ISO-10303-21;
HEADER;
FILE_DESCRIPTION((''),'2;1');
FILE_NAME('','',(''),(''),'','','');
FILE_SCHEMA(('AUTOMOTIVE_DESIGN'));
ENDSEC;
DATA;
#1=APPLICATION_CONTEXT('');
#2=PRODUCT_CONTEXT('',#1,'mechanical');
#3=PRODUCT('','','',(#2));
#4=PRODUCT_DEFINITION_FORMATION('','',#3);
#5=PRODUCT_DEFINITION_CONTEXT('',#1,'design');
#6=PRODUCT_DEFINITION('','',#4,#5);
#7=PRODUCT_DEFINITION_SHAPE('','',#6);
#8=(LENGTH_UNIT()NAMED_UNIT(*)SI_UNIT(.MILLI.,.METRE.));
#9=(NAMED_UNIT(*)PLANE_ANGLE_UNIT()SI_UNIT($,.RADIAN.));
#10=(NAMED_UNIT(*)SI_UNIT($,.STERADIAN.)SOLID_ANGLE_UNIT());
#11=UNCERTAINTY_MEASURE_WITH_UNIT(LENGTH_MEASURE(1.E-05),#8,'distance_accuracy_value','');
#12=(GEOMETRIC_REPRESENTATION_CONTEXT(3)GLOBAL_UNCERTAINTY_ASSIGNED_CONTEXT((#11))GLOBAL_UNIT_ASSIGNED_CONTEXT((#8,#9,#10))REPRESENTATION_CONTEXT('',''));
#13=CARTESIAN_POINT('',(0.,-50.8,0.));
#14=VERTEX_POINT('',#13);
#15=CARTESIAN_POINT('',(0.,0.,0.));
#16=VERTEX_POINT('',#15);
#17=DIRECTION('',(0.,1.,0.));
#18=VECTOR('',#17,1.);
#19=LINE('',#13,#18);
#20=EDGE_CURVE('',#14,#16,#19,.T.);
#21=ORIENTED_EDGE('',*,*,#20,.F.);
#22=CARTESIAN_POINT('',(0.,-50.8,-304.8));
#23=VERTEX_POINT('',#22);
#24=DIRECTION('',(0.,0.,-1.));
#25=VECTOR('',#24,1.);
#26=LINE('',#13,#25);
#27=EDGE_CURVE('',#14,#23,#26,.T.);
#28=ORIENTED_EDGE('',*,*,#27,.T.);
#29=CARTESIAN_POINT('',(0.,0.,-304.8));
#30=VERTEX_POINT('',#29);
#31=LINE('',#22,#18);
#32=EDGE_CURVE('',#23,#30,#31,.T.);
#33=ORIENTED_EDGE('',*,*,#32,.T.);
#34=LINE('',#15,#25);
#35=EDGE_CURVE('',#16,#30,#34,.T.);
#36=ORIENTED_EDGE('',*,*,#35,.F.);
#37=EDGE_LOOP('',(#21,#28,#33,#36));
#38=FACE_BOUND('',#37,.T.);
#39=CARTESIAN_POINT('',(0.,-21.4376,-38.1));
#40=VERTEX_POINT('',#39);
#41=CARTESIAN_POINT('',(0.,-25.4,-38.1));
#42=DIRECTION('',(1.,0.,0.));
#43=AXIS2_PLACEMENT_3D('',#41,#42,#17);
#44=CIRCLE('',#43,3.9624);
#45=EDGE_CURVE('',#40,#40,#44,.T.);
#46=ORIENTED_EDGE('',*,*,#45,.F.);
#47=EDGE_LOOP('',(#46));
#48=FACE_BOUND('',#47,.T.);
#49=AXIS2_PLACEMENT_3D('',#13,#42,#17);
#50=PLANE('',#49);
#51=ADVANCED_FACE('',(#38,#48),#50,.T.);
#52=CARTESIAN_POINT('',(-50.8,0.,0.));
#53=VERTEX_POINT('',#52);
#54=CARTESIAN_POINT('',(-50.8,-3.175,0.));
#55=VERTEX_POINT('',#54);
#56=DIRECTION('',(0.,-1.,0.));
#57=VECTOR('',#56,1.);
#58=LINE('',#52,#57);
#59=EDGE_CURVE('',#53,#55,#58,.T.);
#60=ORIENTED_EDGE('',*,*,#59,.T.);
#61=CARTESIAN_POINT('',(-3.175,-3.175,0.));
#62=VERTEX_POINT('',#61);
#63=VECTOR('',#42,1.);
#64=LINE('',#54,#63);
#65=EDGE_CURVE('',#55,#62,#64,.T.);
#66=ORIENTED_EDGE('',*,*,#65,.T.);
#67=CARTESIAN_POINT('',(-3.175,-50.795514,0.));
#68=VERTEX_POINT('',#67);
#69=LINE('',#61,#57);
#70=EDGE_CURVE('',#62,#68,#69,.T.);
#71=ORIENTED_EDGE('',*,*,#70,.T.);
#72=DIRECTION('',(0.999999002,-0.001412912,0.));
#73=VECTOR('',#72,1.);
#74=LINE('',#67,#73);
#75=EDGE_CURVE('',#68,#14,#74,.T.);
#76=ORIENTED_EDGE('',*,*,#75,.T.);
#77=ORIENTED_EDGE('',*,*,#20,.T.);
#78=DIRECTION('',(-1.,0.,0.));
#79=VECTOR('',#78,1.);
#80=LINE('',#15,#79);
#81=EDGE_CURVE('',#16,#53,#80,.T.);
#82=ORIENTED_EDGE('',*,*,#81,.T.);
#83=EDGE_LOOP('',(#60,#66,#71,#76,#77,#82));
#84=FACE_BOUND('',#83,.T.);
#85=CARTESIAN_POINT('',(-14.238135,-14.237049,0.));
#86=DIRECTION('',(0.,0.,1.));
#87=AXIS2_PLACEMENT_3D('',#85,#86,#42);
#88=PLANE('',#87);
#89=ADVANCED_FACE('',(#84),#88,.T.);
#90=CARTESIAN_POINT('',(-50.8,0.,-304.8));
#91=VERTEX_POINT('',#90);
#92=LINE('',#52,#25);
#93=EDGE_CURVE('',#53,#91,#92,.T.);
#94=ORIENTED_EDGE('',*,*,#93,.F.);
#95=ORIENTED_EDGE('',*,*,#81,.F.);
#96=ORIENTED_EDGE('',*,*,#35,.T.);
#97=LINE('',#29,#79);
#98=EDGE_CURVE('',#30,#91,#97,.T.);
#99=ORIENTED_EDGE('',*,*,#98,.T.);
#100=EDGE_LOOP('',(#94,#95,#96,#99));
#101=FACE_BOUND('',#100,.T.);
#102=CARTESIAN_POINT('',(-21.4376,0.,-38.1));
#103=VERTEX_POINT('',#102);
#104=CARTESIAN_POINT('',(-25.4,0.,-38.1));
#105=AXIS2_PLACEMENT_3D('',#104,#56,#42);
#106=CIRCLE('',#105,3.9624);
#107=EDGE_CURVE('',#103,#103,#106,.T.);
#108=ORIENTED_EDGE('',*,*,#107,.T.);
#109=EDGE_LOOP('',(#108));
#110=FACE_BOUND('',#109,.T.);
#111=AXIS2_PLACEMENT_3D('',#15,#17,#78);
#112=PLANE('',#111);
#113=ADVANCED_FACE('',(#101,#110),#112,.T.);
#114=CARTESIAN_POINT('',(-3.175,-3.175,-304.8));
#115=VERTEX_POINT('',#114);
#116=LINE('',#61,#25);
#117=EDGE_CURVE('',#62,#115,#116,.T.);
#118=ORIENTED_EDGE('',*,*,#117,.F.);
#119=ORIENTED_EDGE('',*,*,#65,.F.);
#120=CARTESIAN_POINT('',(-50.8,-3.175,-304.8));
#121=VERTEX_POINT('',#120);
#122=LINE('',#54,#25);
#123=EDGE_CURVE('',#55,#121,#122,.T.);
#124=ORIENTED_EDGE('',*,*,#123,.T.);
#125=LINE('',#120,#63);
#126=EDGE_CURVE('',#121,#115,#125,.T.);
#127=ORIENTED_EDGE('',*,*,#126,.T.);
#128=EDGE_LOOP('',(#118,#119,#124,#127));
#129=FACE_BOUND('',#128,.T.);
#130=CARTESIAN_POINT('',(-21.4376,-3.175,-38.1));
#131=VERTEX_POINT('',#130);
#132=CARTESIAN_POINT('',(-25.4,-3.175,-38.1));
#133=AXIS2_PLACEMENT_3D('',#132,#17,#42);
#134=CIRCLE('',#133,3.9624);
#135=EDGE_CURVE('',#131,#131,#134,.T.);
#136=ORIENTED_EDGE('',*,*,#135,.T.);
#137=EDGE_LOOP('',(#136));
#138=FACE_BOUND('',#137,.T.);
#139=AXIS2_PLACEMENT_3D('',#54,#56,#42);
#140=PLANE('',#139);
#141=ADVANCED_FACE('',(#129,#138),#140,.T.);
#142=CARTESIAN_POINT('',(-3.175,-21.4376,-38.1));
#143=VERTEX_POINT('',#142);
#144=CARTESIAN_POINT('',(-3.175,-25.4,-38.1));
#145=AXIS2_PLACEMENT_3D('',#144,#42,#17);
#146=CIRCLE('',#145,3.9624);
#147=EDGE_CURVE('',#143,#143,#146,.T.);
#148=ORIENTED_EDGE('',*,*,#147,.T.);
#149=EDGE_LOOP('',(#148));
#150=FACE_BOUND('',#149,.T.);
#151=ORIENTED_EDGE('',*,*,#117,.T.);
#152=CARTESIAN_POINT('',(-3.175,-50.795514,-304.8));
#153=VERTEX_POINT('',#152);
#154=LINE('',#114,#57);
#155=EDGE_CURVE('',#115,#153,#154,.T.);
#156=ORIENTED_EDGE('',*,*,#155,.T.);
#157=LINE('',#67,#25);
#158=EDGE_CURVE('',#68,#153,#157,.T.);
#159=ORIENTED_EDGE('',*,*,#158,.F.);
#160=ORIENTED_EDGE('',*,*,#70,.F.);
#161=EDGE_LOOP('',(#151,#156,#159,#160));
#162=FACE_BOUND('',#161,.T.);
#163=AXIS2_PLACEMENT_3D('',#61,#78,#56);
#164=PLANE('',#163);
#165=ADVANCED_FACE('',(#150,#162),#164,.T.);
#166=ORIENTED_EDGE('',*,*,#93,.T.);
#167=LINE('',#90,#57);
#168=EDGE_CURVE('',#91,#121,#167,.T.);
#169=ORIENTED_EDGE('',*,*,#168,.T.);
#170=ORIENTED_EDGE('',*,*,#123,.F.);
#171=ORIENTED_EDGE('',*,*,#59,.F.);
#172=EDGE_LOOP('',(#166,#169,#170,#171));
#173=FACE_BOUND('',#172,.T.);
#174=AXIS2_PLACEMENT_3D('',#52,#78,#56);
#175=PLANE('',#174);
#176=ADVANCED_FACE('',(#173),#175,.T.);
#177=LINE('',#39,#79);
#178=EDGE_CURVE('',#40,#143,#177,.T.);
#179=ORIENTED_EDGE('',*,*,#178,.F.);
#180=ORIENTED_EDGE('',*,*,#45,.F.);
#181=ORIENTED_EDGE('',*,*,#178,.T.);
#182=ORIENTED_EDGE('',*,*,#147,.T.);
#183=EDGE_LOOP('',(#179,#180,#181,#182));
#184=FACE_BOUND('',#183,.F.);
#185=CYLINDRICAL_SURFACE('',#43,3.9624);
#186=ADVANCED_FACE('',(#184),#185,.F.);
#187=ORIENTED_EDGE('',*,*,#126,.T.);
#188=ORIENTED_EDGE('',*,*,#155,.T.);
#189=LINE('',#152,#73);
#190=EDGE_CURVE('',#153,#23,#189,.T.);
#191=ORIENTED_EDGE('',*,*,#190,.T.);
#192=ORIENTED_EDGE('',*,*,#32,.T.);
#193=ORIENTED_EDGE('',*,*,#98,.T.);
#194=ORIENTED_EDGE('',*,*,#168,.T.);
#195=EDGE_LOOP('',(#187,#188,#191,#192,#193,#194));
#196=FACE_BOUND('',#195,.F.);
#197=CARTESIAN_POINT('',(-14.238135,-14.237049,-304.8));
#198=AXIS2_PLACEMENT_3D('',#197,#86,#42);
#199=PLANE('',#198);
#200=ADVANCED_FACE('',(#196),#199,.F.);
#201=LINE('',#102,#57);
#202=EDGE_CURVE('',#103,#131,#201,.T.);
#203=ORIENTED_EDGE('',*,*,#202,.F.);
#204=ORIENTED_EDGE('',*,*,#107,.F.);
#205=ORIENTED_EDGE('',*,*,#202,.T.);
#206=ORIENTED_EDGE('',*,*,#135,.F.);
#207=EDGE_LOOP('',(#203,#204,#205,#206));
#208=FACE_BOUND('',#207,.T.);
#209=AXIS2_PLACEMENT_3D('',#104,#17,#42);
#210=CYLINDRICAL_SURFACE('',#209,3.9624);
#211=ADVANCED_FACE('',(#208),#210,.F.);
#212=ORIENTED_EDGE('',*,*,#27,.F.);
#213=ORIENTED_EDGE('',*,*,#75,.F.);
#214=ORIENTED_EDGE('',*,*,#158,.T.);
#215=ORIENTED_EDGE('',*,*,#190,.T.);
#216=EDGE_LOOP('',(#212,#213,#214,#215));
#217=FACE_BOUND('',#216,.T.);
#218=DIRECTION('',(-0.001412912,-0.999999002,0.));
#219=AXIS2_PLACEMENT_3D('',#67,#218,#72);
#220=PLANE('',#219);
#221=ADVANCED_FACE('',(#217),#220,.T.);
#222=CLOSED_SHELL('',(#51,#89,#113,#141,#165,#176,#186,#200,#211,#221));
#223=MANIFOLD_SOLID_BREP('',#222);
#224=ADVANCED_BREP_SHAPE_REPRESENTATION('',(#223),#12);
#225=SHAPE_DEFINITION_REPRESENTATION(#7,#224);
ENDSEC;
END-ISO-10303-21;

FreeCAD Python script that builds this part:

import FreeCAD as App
import Part
import Sketcher
from FreeCAD import Vector
Q = App.Units.Quantity


def add_polygon(sketch, points):
    """Adds a closed chain of lines whose ends are joined by coincident constraints."""
    first, n = sketch.GeometryCount, len(points)
    for a, b in zip(points, points[1:] + points[:1]):
        sketch.addGeometry(Part.LineSegment(App.Vector(*a, 0), App.Vector(*b, 0)), False)
    for i in range(n):
        sketch.addConstraint(Sketcher.Constraint("Coincident", first + i, 2, first + (i + 1) % n, 1))

doc = App.newDocument("Part")
params = doc.addObject("Spreadsheet::Sheet", "Params")
for row, (alias, value) in enumerate([
    ("sketch1_width", "2 in"),
    ("sketch1_width2", "1.875 in"),
    ("sketch1_height", "0.125 in"),
    ("pad1_length", "12 in"),
    ("sketch2_diameter", "0.312 in"),
    ("sketch3_diameter", "0.312 in"),
], start=1):
    params.set(f"A{row}", alias)
    params.set(f"B{row}", "=" + value)
    params.setAlias(f"B{row}", alias)

body = doc.addObject("PartDesign::Body", "Body")

# Sketch on XY plane
sketch1 = body.newObject("Sketcher::SketchObject", "Sketch")
sketch1.AttachmentSupport = (doc.getObject("XY_Plane"), [""])
sketch1.MapMode = "FlatFace"
add_polygon(sketch1, [(0, 0), (-50.8, 0), (-50.8, -3.2), (-3.2, -3.2), (-3.2, -50.8), (0, -50.8)])  # lines 0-5
sketch1.addConstraint([
    Sketcher.Constraint("Horizontal", 0),
    Sketcher.Constraint("Vertical", 1),
    Sketcher.Constraint("Horizontal", 2),
    Sketcher.Constraint("Vertical", 3),
    Sketcher.Constraint("Vertical", 5),
    Sketcher.Constraint("Coincident", 5, 2, -1, 1),
    Sketcher.Constraint("Equal", 0, 5),
    Sketcher.Constraint("DistanceX", 0, 2, 0, 1, Q("2 in")),
    Sketcher.Constraint("DistanceX", 2, 1, 2, 2, Q("1.875 in")),
    Sketcher.Constraint("DistanceY", 1, 2, 1, 1, Q("0.125 in")),
    Sketcher.Constraint("DistanceY", 3, 2, 3, 1, 47.620514),
])
sketch1.setExpression("Constraints[13]", "Params.sketch1_width")
sketch1.setExpression("Constraints[14]", "Params.sketch1_width2")
sketch1.setExpression("Constraints[15]", "Params.sketch1_height")
pad1 = body.newObject("PartDesign::Pad", "Pad")
pad1.Profile = sketch1
pad1.setExpression("Length", "Params.pad1_length")
pad1.Reversed = True

# Sketch on YZ plane
sketch2 = body.newObject("Sketcher::SketchObject", "Sketch001")
sketch2.AttachmentSupport = (doc.getObject("YZ_Plane"), [""])
sketch2.MapMode = "FlatFace"
sketch2.addGeometry(Part.Circle(Vector(-25.4, -38.1, 0), Vector(0, 0, 1), 4), False)
sketch2.addConstraint([
    Sketcher.Constraint("Diameter", 0, Q("0.312 in")),
    Sketcher.Constraint("DistanceX", 0, 3, -1, 1, Q("1 in")),
    Sketcher.Constraint("DistanceY", 0, 3, -1, 1, Q("1.5 in")),
])
sketch2.setExpression("Constraints[0]", "Params.sketch2_diameter")
pocket1 = body.newObject("PartDesign::Pocket", "Pocket")
pocket1.Profile = sketch2
pocket1.Type = "ThroughAll"

# Sketch on XZ plane
sketch3 = body.newObject("Sketcher::SketchObject", "Sketch002")
sketch3.AttachmentSupport = (doc.getObject("XZ_Plane"), [""])
sketch3.MapMode = "FlatFace"
sketch3.addGeometry(Part.Circle(Vector(-25.4, -38.1, 0), Vector(0, 0, 1), 4), False)
sketch3.addConstraint([
    Sketcher.Constraint("Diameter", 0, Q("0.312 in")),
    Sketcher.Constraint("DistanceX", 0, 3, -1, 1, Q("1 in")),
    Sketcher.Constraint("DistanceY", 0, 3, -1, 1, Q("1.5 in")),
])
sketch3.setExpression("Constraints[0]", "Params.sketch3_diameter")
pocket2 = body.newObject("PartDesign::Pocket", "Pocket001")
pocket2.Profile = sketch3
pocket2.Type = "ThroughAll"
pocket2.Reversed = True

doc.recompute()
